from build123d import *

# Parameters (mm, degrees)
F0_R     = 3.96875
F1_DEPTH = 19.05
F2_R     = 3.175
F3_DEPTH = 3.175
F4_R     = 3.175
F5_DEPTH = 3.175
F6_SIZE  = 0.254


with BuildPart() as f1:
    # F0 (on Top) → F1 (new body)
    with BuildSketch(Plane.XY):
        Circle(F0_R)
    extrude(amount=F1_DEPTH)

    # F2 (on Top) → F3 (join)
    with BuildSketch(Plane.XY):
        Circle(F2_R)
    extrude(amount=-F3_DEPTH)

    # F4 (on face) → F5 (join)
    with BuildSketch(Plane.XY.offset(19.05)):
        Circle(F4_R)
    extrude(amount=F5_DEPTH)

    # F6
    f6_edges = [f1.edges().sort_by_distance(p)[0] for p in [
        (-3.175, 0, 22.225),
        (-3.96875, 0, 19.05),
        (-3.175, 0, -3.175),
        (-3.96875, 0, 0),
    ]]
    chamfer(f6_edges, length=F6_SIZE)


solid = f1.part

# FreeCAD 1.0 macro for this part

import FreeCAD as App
import Part
import Sketcher

V = App.Vector
Q = App.Units.Quantity


def edges_at(feature, points):
    """Names of the edges that pass closest to the given points."""
    edges = feature.Shape.Edges
    near = lambda p: min(range(len(edges)), key=lambda i: edges[i].distToShape(Part.Vertex(*p))[0])
    return sorted({f"Edge{near(p) + 1}" for p in points})

doc = App.newDocument("Part")
params = doc.addObject("Spreadsheet::Sheet", "Params")
for row, (alias, value) in enumerate([
    ("sketch1_diameter", "0.3125 in"),
    ("pad1_length", "0.75 in"),
    ("sketch2_diameter", "0.25 in"),
    ("pad2_length", "0.125 in"),
    ("sketch3_diameter", "0.25 in"),
    ("pad3_length", "0.125 in"),
    ("chamfer_size", "0.01 in"),
], start=1):
    params.set(f"A{row}", alias)
    params.set(f"B{row}", "=" + value)
    params.setAlias(f"B{row}", alias)

body = doc.addObject("PartDesign::Body", "Body")

sketch1 = body.newObject("Sketcher::SketchObject", "Sketch")
sketch1.AttachmentSupport = (doc.getObject("XY_Plane"), [""])
sketch1.MapMode = "FlatFace"
sketch1.addGeometry(Part.Circle(V(0, 0, 0), V(0, 0, 1), 4), False)
sketch1.addConstraint([
    Sketcher.Constraint("Coincident", 0, 3, -1, 1),
    Sketcher.Constraint("Diameter", 0, Q("0.3125 in")),
])
sketch1.setExpression("Constraints[1]", "Params.sketch1_diameter")
pad1 = body.newObject("PartDesign::Pad", "Pad")
pad1.Profile = sketch1
pad1.setExpression("Length", "Params.pad1_length")

sketch2 = body.newObject("Sketcher::SketchObject", "Sketch001")
sketch2.AttachmentSupport = (doc.getObject("XY_Plane"), [""])
sketch2.MapMode = "FlatFace"
sketch2.addGeometry(Part.Circle(V(0, 0, 0), V(0, 0, 1), 3.2), False)
sketch2.addConstraint([
    Sketcher.Constraint("Coincident", 0, 3, -1, 1),
    Sketcher.Constraint("Diameter", 0, Q("0.25 in")),
])
sketch2.setExpression("Constraints[1]", "Params.sketch2_diameter")
pad2 = body.newObject("PartDesign::Pad", "Pad001")
pad2.Profile = sketch2
pad2.setExpression("Length", "Params.pad2_length")
pad2.Reversed = True

sketch3 = body.newObject("Sketcher::SketchObject", "Sketch002")
sketch3.AttachmentSupport = (doc.getObject("XY_Plane"), [""])
sketch3.MapMode = "FlatFace"
sketch3.AttachmentOffset = App.Placement(V(0, 0, 0.75 * 25.4), App.Rotation())
sketch3.addGeometry(Part.Circle(V(0, 0, 0), V(0, 0, 1), 3.2), False)
sketch3.addConstraint([
    Sketcher.Constraint("Coincident", 0, 3, -1, 1),
    Sketcher.Constraint("Diameter", 0, Q("0.25 in")),
])
sketch3.setExpression("Constraints[1]", "Params.sketch3_diameter")
pad3 = body.newObject("PartDesign::Pad", "Pad002")
pad3.Profile = sketch3
pad3.setExpression("Length", "Params.pad3_length")
doc.recompute()

chamfer = body.newObject("PartDesign::Chamfer", "Chamfer")
chamfer.Base = (pad3, edges_at(pad3, [
    (-3.175, 0, 22.225),
    (-3.969, 0, 19.05),
    (-3.175, 0, -3.175),
    (-3.969, 0, 0),
]))
chamfer.setExpression("Size", "Params.chamfer_size")

doc.recompute()
